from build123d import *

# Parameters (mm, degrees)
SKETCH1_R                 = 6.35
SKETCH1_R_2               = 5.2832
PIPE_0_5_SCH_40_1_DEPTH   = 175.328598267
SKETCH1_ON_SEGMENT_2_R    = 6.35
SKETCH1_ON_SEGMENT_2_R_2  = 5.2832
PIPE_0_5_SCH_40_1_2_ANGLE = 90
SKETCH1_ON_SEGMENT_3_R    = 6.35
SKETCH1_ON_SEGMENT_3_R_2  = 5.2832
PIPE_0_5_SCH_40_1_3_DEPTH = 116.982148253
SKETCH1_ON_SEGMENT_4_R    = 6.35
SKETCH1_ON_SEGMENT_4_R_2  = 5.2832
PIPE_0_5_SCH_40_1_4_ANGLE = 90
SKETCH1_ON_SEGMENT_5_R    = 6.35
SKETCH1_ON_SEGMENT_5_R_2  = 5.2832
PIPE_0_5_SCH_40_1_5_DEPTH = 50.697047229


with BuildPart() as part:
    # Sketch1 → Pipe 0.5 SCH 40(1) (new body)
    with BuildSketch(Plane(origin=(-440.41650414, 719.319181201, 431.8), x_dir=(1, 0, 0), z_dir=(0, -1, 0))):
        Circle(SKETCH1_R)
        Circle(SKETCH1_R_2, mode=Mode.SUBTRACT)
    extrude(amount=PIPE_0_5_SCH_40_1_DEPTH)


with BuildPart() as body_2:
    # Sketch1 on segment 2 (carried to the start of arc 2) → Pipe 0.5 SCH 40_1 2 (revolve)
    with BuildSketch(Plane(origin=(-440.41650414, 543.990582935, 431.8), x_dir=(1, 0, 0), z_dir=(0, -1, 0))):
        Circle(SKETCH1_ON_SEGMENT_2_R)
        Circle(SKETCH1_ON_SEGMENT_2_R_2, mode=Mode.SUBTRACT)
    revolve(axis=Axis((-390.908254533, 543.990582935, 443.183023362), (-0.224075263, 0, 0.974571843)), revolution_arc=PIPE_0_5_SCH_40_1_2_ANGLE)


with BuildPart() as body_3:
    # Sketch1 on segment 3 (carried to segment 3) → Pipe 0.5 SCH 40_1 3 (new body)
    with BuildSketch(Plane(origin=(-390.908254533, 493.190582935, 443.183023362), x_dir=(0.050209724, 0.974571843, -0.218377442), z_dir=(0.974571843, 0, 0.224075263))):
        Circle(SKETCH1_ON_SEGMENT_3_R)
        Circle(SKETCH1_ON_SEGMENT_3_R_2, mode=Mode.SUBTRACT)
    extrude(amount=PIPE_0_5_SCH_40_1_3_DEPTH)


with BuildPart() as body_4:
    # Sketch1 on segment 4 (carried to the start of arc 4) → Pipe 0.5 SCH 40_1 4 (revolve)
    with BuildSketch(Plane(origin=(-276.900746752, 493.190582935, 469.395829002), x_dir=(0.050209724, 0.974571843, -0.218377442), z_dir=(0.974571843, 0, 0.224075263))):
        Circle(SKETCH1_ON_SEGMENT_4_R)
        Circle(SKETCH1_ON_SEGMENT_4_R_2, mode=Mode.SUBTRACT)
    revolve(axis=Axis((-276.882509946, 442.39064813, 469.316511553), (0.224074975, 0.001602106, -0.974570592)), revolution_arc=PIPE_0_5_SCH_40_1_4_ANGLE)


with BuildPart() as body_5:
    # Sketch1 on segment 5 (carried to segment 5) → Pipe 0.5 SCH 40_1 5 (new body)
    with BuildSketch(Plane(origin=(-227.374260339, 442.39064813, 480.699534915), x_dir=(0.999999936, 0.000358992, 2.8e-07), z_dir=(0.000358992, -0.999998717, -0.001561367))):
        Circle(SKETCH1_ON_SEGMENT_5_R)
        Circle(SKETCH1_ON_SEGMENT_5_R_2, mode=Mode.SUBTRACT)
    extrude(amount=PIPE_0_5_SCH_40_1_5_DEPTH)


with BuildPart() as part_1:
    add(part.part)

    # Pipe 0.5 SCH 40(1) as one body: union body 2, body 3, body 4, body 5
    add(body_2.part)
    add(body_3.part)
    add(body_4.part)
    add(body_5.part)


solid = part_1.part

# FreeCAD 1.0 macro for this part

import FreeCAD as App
import Part
import Sketcher

V = App.Vector
Q = App.Units.Quantity

doc = App.newDocument("Part")
body = doc.addObject("PartDesign::Body", "Body")

# Sketch on XZ plane
sketch1 = body.newObject("Sketcher::SketchObject", "Sketch")
sketch1.AttachmentSupport = (doc.getObject("XZ_Plane"), [""])
sketch1.MapMode = "FlatFace"
sketch1.AttachmentOffset = App.Placement(V(0, 0, -719.319181), App.Rotation())
sketch1.addGeometry([
    Part.Circle(V(-440.416504, 431.8, 0), V(0, 0, 1), 6.35),
    Part.Circle(V(-440.416504, 431.8, 0), V(0, 0, 1), 5.2832),
], False)
sketch1.addConstraint([
    Sketcher.Constraint("Coincident", 1, 3, 0, 3),
    Sketcher.Constraint("Diameter", 0, Q("0.5 in")),
    Sketcher.Constraint("Diameter", 1, Q("0.416 in")),
    Sketcher.Constraint("DistanceY", -1, 1, 0, 3, Q("17 in")),
    Sketcher.Constraint("DistanceX", 0, 3, -1, 1, 440.416504),
])
pad1 = body.newObject("PartDesign::Pad", "Pad")
pad1.Profile = sketch1
pad1.Length = 175.328598
body2 = doc.addObject("PartDesign::Body", "Body001")

# Sketch on XZ plane
sketch2 = body2.newObject("Sketcher::SketchObject", "Sketch001")
sketch2.AttachmentSupport = (doc.getObject("XZ_Plane001"), [""])
sketch2.MapMode = "FlatFace"
sketch2.AttachmentOffset = App.Placement(V(0, 0, -543.990583), App.Rotation())
sketch2.addGeometry([
    Part.Circle(V(-440.416504, 431.8, 0), V(0, 0, 1), 6.35),
    Part.Circle(V(-440.416504, 431.8, 0), V(0, 0, 1), 5.2832),
], False)
sketch2.addGeometry(Part.LineSegment(V(-390.908255, 443.183023, 0), V(-393.149007, 452.928742, 0)), True)  # axis
sketch2.addConstraint([
    Sketcher.Constraint("Coincident", 1, 3, 0, 3),
    Sketcher.Constraint("Diameter", 0, Q("0.5 in")),
    Sketcher.Constraint("Diameter", 1, Q("0.416 in")),
    Sketcher.Constraint("DistanceY", -1, 1, 0, 3, Q("17 in")),
    Sketcher.Constraint("Distance", 2, 10.0),
    Sketcher.Constraint("DistanceY", -1, 1, 2, 2, 452.928742),
    Sketcher.Constraint("DistanceX", 0, 3, 2, 1, 49.50825),
    Sketcher.Constraint("DistanceY", 2, 1, 2, 2, 9.745718),
    Sketcher.Constraint("DistanceX", 0, 3, -1, 1, 440.416504),
])
revolution = body2.newObject("PartDesign::Revolution", "Revolution")
revolution.Profile = sketch2
revolution.ReferenceAxis = (sketch2, ["Axis0"])
revolution.Angle = 90
body3 = doc.addObject("PartDesign::Body", "Body002")

# Sketch on an angled plane
sketch3 = body3.newObject("Sketcher::SketchObject", "Sketch002")
sketch3.Placement = App.Placement(V(-390.908255, 493.190583, 443.183023), App.Rotation(V(0.050209723, 0.974571843, -0.218377442), V(-0.218377442, 0.224075263, 0.949790277), V(0.974571843, 0, 0.224075263), "ZXY"))
sketch3.addGeometry([
    Part.Circle(V(0, 0, 0), V(0, 0, 1), 6.35),
    Part.Circle(V(0, 0, 0), V(0, 0, 1), 5.2832),
], False)
sketch3.addConstraint([
    Sketcher.Constraint("Coincident", 0, 3, -1, 1),
    Sketcher.Constraint("Coincident", 1, 3, -1, 1),
    Sketcher.Constraint("Diameter", 0, Q("0.5 in")),
    Sketcher.Constraint("Diameter", 1, Q("0.416 in")),
])
pad2 = body3.newObject("PartDesign::Pad", "Pad001")
pad2.Profile = sketch3
pad2.Length = 116.982148
body4 = doc.addObject("PartDesign::Body", "Body003")

# Sketch on an angled plane
sketch4 = body4.newObject("Sketcher::SketchObject", "Sketch003")
sketch4.Placement = App.Placement(V(-276.900747, 493.190583, 469.395829), App.Rotation(V(0.050209723, 0.974571843, -0.218377442), V(-0.218377442, 0.224075263, 0.949790277), V(0.974571843, 0, 0.224075263), "ZXY"))
sketch4.addGeometry([
    Part.Circle(V(0, 0, 0), V(0, 0, 1), 6.35),
    Part.Circle(V(0, 0, 0), V(0, 0, 1), 5.2832),
], False)
sketch4.addGeometry(Part.LineSegment(V(-49.489949, -11.462326, 0), V(-47.233586, -21.204442, 0)), True)  # axis
sketch4.addConstraint([
    Sketcher.Constraint("Coincident", 0, 3, -1, 1),
    Sketcher.Constraint("Coincident", 1, 3, -1, 1),
    Sketcher.Constraint("Diameter", 0, Q("0.5 in")),
    Sketcher.Constraint("Diameter", 1, Q("0.416 in")),
    Sketcher.Constraint("Distance", 2, 10.0),
    Sketcher.Constraint("DistanceX", 2, 1, -1, 1, 49.489949),
    Sketcher.Constraint("DistanceY", 2, 1, -1, 1, 11.462326),
    Sketcher.Constraint("DistanceX", 2, 2, -1, 1, 47.233586),
])
revolution2 = body4.newObject("PartDesign::Revolution", "Revolution001")
revolution2.Profile = sketch4
revolution2.ReferenceAxis = (sketch4, ["Axis0"])
revolution2.Angle = 90
body5 = doc.addObject("PartDesign::Body", "Body004")

# Sketch on an angled plane
sketch5 = body5.newObject("Sketcher::SketchObject", "Sketch004")
sketch5.Placement = App.Placement(V(-227.37426, 442.390648, 480.699535), App.Rotation(V(0.999999936, 0.000358992, 0.00000028), V(0.000000281, -0.001561367, 0.999998782), V(0.000358992, -0.999998717, -0.001561367), "ZXY"))
sketch5.addGeometry([
    Part.Circle(V(0, 0, 0), V(0, 0, 1), 6.35),
    Part.Circle(V(0, 0, 0), V(0, 0, 1), 5.2832),
], False)
sketch5.addConstraint([
    Sketcher.Constraint("Coincident", 0, 3, -1, 1),
    Sketcher.Constraint("Coincident", 1, 3, -1, 1),
    Sketcher.Constraint("Diameter", 0, Q("0.5 in")),
    Sketcher.Constraint("Diameter", 1, Q("0.416 in")),
])
pad3 = body5.newObject("PartDesign::Pad", "Pad002")
pad3.Profile = sketch5
pad3.Length = 50.697047
doc.recompute()

boolean = body.newObject("PartDesign::Boolean", "Boolean")
boolean.Type = "Fuse"
boolean.addObjects([body2])
doc.recompute()

boolean2 = body.newObject("PartDesign::Boolean", "Boolean001")
boolean2.Type = "Fuse"
boolean2.addObjects([body3])
doc.recompute()

boolean3 = body.newObject("PartDesign::Boolean", "Boolean002")
boolean3.Type = "Fuse"
boolean3.addObjects([body4])
doc.recompute()

boolean4 = body.newObject("PartDesign::Boolean", "Boolean003")
boolean4.Type = "Fuse"
boolean4.addObjects([body5])

doc.recompute()
